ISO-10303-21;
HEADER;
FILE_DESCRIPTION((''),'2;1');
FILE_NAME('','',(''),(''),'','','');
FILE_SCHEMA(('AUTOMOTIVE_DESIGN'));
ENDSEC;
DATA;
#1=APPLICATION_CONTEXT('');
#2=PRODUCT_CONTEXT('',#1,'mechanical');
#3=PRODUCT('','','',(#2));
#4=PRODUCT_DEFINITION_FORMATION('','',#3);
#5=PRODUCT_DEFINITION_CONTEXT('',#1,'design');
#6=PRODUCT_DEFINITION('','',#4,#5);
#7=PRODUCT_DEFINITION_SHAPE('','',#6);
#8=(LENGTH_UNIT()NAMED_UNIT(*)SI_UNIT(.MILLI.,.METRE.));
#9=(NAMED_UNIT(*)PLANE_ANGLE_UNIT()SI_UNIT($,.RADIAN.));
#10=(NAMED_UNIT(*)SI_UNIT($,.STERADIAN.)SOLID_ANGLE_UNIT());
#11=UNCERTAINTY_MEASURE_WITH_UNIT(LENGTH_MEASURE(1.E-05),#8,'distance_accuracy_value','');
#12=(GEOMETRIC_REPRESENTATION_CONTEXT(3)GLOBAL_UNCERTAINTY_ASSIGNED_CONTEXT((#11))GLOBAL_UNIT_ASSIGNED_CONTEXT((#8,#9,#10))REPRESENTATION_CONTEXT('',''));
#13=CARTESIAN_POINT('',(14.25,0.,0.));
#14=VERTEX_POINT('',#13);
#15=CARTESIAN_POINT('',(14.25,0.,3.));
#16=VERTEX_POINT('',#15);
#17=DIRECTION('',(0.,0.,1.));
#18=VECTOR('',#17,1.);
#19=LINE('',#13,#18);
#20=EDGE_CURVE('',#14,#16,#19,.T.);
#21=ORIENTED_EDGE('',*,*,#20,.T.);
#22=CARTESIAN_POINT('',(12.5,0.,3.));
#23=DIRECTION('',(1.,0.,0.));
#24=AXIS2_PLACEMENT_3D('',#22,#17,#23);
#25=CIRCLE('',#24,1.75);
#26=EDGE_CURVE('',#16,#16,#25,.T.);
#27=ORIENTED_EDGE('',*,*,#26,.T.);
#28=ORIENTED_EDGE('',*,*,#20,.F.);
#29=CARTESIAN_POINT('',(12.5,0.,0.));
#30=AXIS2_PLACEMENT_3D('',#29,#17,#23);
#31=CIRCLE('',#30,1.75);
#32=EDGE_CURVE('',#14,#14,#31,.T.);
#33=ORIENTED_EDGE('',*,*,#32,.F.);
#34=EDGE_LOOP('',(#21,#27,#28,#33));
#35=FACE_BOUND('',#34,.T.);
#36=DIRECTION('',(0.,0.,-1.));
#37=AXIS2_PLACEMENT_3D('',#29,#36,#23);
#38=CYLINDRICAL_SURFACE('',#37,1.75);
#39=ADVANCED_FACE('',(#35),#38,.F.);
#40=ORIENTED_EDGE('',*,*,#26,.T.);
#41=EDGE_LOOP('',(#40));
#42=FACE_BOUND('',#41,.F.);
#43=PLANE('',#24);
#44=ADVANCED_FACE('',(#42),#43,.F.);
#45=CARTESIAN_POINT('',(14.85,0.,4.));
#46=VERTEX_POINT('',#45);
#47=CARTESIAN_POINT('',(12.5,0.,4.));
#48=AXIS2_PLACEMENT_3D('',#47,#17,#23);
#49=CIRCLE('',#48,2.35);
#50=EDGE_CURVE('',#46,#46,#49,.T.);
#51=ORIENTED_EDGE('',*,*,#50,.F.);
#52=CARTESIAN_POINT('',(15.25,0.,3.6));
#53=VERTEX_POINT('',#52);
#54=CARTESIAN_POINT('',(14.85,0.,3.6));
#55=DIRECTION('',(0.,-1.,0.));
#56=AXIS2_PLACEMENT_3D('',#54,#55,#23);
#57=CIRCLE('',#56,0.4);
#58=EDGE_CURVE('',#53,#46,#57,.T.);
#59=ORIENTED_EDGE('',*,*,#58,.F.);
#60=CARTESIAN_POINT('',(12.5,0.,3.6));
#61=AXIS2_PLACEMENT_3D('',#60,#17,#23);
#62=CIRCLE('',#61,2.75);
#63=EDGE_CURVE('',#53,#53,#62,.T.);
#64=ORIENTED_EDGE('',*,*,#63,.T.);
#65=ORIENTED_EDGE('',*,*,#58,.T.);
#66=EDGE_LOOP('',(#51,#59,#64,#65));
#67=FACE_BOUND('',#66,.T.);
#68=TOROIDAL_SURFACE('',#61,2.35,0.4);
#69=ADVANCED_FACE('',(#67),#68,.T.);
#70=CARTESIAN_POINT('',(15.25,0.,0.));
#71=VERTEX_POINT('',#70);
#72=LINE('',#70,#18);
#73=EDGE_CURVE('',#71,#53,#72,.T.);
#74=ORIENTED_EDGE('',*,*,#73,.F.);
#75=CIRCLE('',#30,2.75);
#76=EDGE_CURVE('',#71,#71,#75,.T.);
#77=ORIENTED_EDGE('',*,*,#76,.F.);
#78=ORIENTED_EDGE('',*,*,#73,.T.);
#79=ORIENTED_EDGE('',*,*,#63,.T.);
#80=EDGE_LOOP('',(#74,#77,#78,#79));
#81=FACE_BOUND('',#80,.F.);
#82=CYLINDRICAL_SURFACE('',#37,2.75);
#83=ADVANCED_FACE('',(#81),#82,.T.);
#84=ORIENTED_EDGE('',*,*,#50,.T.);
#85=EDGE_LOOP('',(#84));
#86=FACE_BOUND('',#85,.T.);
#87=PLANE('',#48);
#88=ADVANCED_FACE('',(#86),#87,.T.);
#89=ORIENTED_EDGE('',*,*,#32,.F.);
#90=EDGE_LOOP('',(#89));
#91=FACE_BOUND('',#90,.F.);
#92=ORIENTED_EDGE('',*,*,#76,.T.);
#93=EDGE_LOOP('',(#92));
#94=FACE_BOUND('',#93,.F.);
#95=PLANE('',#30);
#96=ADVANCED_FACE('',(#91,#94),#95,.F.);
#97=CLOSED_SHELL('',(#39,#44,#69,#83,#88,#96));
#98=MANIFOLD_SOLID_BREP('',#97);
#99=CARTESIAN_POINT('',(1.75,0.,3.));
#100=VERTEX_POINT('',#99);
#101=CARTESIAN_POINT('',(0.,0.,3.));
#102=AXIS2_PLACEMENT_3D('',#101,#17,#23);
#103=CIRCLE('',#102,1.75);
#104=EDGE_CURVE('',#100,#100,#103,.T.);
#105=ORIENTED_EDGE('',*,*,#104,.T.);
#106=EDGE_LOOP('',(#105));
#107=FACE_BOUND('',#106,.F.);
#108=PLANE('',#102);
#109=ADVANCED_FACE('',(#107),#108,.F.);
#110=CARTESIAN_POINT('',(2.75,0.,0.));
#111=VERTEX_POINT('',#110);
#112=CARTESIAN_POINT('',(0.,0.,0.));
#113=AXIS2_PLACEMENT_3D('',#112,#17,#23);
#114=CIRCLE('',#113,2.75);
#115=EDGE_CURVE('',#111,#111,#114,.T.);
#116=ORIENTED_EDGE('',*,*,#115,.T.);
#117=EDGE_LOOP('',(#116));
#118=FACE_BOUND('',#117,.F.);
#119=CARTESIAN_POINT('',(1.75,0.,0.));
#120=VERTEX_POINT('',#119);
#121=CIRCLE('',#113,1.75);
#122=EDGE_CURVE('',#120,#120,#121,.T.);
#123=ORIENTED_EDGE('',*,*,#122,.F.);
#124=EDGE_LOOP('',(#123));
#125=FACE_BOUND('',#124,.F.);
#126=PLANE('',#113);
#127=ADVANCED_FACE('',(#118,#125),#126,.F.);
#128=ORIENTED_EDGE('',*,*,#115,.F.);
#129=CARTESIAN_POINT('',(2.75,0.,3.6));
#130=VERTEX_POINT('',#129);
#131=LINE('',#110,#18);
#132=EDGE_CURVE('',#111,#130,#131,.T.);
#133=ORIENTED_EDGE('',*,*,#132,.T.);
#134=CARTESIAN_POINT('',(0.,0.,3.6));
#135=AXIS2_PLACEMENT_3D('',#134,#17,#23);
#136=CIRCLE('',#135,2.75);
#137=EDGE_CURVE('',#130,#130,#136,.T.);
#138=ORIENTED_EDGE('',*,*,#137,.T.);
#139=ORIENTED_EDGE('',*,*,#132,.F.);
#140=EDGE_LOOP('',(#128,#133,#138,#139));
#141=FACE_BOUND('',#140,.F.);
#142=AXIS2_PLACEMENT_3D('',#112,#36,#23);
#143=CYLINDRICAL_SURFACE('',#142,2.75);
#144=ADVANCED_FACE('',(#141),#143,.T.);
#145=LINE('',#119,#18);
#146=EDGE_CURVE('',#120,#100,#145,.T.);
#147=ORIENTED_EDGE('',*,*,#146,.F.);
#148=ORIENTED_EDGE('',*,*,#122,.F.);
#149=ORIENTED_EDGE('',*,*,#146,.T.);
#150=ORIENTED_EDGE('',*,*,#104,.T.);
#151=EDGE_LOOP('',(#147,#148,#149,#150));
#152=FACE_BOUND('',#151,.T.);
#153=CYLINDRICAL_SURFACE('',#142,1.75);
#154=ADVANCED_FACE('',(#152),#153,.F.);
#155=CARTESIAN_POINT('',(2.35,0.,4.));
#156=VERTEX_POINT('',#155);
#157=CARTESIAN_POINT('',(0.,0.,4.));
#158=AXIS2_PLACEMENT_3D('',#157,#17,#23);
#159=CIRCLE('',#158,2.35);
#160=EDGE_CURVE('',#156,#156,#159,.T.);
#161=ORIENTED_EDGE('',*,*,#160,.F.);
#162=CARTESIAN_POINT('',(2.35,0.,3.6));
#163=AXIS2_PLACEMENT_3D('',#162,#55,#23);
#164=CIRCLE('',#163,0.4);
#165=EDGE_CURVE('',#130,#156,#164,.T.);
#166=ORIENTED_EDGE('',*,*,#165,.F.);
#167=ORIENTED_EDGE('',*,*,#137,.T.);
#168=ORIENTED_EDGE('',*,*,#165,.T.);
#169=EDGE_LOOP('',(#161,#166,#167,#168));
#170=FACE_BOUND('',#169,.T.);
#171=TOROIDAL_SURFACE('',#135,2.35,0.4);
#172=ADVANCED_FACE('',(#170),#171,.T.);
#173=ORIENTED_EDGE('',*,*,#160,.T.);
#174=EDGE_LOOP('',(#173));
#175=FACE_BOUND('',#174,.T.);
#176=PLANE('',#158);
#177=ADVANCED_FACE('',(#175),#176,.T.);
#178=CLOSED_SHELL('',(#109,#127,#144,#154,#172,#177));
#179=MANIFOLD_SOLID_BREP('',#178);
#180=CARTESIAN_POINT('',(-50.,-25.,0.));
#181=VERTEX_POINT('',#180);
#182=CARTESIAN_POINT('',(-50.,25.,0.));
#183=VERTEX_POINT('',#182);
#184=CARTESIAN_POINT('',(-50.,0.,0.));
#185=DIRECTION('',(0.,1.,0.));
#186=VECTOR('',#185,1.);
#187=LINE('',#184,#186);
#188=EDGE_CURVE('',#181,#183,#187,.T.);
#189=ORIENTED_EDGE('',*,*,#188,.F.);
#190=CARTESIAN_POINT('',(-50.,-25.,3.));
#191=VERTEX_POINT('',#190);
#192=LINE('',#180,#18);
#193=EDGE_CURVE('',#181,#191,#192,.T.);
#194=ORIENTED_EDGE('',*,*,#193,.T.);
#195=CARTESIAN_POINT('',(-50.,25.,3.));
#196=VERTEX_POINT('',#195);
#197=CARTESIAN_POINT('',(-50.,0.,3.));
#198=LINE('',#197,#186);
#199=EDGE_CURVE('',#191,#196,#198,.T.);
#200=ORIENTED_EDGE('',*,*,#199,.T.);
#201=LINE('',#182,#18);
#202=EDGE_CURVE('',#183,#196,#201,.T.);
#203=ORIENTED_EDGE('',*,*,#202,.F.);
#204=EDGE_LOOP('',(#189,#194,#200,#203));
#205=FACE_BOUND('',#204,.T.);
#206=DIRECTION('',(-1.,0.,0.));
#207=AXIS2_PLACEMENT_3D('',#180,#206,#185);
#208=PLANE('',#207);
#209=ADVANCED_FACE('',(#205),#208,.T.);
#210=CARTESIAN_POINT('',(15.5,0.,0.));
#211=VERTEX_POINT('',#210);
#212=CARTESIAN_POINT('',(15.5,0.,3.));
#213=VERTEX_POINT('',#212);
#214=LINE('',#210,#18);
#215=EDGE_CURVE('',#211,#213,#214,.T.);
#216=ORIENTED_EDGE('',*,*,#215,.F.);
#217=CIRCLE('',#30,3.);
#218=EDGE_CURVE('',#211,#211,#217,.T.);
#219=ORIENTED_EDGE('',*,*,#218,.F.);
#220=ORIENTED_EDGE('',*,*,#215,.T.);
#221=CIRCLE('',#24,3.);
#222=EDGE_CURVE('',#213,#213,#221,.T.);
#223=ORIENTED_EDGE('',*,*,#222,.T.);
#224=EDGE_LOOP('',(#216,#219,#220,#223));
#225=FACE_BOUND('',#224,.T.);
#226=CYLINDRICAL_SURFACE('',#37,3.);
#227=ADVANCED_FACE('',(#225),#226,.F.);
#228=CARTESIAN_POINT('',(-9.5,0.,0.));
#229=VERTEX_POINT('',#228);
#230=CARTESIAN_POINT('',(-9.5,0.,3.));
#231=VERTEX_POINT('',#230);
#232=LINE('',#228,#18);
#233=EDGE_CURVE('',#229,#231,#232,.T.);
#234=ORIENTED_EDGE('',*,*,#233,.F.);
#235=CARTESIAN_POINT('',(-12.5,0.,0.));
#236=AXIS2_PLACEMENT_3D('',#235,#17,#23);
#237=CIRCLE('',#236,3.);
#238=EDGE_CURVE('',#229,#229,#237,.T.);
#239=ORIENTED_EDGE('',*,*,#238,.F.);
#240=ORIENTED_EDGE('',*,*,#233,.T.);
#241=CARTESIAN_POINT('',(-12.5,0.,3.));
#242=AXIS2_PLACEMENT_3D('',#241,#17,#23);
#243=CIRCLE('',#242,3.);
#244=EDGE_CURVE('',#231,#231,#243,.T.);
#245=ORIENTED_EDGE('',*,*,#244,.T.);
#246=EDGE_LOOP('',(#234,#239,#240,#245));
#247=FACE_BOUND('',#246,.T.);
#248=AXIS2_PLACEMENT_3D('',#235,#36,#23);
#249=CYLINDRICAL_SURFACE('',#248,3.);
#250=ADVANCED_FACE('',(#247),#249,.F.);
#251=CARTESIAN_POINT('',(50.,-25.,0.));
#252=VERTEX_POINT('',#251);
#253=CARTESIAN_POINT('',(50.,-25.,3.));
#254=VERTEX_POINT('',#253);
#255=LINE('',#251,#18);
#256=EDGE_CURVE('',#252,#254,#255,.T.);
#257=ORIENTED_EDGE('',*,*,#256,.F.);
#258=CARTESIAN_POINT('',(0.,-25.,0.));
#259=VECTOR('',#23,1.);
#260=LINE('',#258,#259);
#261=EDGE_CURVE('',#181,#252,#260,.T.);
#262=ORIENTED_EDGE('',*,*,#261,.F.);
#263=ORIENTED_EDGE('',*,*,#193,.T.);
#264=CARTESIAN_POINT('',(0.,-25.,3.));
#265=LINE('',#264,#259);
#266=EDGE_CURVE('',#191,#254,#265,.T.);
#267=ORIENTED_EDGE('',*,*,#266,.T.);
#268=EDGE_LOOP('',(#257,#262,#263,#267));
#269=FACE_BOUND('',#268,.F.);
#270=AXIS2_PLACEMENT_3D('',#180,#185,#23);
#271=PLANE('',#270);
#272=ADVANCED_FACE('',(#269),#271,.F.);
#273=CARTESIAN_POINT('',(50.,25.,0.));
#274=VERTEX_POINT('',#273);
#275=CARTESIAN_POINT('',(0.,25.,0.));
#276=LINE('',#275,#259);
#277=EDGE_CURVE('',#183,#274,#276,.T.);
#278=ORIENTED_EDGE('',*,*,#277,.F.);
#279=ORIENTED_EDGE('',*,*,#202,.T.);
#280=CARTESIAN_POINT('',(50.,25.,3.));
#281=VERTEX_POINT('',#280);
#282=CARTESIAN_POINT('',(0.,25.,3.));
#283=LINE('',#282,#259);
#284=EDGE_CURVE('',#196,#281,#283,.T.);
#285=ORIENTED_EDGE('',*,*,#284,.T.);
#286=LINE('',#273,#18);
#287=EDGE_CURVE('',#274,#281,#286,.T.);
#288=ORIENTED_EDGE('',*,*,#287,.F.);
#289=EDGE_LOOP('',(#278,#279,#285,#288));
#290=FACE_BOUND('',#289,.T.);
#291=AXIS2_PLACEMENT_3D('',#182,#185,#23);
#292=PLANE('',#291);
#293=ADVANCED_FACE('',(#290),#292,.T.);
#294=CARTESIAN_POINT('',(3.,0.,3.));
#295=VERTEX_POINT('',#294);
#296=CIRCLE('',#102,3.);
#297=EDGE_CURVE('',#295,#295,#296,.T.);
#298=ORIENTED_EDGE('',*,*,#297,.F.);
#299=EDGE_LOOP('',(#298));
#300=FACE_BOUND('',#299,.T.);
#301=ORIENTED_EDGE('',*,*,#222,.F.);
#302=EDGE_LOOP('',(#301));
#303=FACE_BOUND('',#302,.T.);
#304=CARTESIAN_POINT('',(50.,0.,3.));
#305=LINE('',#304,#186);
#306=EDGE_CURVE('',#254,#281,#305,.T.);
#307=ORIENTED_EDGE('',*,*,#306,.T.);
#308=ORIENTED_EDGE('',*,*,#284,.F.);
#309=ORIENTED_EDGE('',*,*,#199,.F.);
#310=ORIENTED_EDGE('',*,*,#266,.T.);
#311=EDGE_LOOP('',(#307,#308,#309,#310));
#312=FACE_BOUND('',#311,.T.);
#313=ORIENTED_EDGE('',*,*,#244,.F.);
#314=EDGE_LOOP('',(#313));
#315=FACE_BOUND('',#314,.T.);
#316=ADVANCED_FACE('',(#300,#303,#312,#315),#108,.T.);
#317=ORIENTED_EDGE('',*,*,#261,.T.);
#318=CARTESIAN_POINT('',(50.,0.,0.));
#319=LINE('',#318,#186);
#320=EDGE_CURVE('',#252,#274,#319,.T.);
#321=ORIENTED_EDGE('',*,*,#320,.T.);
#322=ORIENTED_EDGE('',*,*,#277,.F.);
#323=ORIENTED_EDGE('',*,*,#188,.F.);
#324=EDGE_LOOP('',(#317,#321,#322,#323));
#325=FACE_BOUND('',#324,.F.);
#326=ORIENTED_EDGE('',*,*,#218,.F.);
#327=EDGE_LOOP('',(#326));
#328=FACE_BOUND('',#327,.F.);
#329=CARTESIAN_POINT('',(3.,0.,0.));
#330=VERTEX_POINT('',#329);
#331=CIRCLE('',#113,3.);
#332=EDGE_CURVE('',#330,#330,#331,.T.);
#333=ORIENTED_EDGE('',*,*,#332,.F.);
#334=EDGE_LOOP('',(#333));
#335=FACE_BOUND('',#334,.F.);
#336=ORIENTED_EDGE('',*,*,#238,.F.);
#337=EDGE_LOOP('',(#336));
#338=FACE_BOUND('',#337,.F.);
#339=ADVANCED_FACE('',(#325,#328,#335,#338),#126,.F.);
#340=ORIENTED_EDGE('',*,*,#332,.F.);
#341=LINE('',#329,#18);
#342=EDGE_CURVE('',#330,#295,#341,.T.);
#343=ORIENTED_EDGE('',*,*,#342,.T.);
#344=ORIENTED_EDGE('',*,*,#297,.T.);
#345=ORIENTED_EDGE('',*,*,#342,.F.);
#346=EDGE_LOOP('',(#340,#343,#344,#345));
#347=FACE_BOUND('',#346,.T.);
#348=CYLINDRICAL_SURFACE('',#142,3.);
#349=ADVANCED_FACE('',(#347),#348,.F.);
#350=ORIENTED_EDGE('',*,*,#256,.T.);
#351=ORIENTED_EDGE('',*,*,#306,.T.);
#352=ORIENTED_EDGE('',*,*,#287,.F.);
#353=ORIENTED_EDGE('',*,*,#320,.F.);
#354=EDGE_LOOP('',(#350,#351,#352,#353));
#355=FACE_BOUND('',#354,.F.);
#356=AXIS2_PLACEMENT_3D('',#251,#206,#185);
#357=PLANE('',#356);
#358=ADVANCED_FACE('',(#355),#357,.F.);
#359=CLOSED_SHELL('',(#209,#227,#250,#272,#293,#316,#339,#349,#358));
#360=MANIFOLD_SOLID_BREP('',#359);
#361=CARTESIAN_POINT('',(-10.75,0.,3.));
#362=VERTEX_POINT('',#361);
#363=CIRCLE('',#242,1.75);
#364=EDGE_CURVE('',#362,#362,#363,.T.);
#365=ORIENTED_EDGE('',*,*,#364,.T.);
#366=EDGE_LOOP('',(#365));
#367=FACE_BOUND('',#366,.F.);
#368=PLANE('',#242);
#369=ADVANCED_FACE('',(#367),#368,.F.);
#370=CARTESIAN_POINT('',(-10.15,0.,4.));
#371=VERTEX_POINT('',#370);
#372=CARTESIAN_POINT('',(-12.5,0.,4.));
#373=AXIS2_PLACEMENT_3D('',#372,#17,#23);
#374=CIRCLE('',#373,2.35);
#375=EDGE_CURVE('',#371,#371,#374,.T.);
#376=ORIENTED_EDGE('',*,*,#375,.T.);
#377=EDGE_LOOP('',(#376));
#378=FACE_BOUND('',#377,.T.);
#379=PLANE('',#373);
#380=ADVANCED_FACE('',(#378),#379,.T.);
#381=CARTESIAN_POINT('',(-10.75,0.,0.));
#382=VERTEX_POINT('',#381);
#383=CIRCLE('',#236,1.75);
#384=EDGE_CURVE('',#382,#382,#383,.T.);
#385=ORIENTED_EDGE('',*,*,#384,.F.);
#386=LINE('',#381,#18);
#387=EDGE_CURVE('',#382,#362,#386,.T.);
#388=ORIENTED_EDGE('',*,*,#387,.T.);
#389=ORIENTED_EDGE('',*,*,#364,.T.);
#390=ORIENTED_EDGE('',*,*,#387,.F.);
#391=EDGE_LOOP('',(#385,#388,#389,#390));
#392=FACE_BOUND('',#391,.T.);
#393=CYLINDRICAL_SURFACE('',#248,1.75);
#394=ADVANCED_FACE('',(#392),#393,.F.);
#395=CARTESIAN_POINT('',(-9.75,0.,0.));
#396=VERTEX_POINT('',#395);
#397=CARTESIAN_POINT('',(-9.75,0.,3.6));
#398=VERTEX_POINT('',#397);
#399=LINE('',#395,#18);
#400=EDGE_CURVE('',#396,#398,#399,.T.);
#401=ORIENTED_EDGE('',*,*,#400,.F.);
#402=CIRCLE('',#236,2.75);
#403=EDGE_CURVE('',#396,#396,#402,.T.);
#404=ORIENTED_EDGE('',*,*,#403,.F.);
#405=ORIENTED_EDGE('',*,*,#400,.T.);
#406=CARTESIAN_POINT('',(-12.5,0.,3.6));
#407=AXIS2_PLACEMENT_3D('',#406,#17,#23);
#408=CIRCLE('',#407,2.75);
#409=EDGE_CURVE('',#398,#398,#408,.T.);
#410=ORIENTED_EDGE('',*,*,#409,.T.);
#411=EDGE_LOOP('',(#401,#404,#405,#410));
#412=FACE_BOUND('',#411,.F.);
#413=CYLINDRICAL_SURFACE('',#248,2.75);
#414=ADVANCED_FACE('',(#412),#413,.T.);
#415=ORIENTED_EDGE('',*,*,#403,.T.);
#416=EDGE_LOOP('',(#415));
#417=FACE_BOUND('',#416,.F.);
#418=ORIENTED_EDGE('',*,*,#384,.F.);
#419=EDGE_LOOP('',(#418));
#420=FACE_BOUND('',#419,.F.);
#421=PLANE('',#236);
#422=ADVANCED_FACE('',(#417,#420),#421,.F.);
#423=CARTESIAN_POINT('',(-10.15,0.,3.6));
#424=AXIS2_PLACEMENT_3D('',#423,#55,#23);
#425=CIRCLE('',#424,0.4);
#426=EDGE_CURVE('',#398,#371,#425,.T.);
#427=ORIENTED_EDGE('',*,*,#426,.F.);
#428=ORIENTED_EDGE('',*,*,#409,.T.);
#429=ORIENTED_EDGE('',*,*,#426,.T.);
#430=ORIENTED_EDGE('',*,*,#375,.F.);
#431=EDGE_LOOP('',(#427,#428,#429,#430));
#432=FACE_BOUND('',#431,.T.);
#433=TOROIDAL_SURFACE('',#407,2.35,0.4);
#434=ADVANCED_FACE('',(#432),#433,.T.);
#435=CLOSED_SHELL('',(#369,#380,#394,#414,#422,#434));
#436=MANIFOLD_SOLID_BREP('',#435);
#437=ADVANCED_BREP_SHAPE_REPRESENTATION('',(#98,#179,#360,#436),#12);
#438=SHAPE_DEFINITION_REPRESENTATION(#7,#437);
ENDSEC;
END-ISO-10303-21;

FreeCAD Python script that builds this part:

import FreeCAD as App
import Part
import Sketcher
from FreeCAD import Vector
Q = App.Units.Quantity


def edges_at(feature, points):
    """Names of the edges that pass closest to the given points."""
    edges = feature.Shape.Edges
    near = lambda p: min(range(len(edges)), key=lambda i: edges[i].distToShape(Part.Vertex(*p))[0])
    return sorted({f"Edge{near(p) + 1}" for p in points})

doc = App.newDocument("Part")
body = doc.addObject("PartDesign::Body", "Body")

# Sketch on XY plane
sketch1 = body.newObject("Sketcher::SketchObject", "Sketch")
sketch1.AttachmentSupport = (doc.getObject("XY_Plane"), [""])
sketch1.MapMode = "FlatFace"
sketch1.addGeometry([
    Part.LineSegment(Vector(-50, 25, 0), Vector(-50, -25, 0)),  # 0
    Part.LineSegment(Vector(-50, -25, 0), Vector(50, -25, 0)),  # 1
    Part.LineSegment(Vector(50, -25, 0), Vector(50, 25, 0)),  # 2
    Part.LineSegment(Vector(50, 25, 0), Vector(-50, 25, 0)),  # 3
    Part.Circle(Vector(-12.5, 0, 0), Vector(0, 0, 1), 3),  # 4
    Part.Circle(Vector(0, 0, 0), Vector(0, 0, 1), 3),  # 5
    Part.Circle(Vector(12.5, 0, 0), Vector(0, 0, 1), 3),  # 6
], False)
sketch1.addConstraint([
    Sketcher.Constraint("Coincident", 0, 2, 1, 1),
    Sketcher.Constraint("Coincident", 1, 2, 2, 1),
    Sketcher.Constraint("Coincident", 2, 2, 3, 1),
    Sketcher.Constraint("Coincident", 3, 2, 0, 1),
    Sketcher.Constraint("Vertical", 0),
    Sketcher.Constraint("Horizontal", 1),
    Sketcher.Constraint("Vertical", 2),
    Sketcher.Constraint("Horizontal", 3),
    Sketcher.Constraint("Coincident", 5, 3, -1, 1),
    Sketcher.Constraint("Equal", 4, 5),
    Sketcher.Constraint("Equal", 5, 6),
    Sketcher.Constraint("Symmetric", 4, 3, 6, 3, -1, 1),
    Sketcher.Constraint("Symmetric", 0, 2, 2, 2, -1, 1),
    Sketcher.Constraint("PointOnObject", 4, 3, -1),
    Sketcher.Constraint("Diameter", 4, Q("6 mm")),
    Sketcher.Constraint("DistanceX", 1, 1, 1, 2, Q("100 mm")),
    Sketcher.Constraint("DistanceY", 0, 2, 0, 1, Q("50 mm")),
    Sketcher.Constraint("DistanceX", 4, 3, 6, 3, Q("25 mm")),
])
pad1 = body.newObject("PartDesign::Pad", "Pad")
pad1.Profile = sketch1
pad1.Length = 3
body2 = doc.addObject("PartDesign::Body", "Body001")

# Sketch on XY plane
sketch2 = body2.newObject("Sketcher::SketchObject", "Sketch001")
sketch2.AttachmentSupport = (doc.getObject("XY_Plane001"), [""])
sketch2.MapMode = "FlatFace"
sketch2.addGeometry(Part.Circle(Vector(-12.5, 0, 0), Vector(0, 0, 1), 2.8), False)
sketch2.addConstraint([
    Sketcher.Constraint("PointOnObject", 0, 3, -1),
    Sketcher.Constraint("Diameter", 0, Q("5.5 mm")),
    Sketcher.Constraint("DistanceX", 0, 3, -1, 1, Q("12.5 mm")),
])
pad2 = body2.newObject("PartDesign::Pad", "Pad001")
pad2.Profile = sketch2
pad2.Length = 4
body3 = doc.addObject("PartDesign::Body", "Body002")

# Sketch on XY plane
sketch3 = body3.newObject("Sketcher::SketchObject", "Sketch002")
sketch3.AttachmentSupport = (doc.getObject("XY_Plane002"), [""])
sketch3.MapMode = "FlatFace"
sketch3.addGeometry(Part.Circle(Vector(0, 0, 0), Vector(0, 0, 1), 2.8), False)
sketch3.addConstraint([
    Sketcher.Constraint("Coincident", 0, 3, -1, 1),
    Sketcher.Constraint("Diameter", 0, Q("5.5 mm")),
])
pad3 = body3.newObject("PartDesign::Pad", "Pad002")
pad3.Profile = sketch3
pad3.Length = 4
body4 = doc.addObject("PartDesign::Body", "Body003")

# Sketch on XY plane
sketch4 = body4.newObject("Sketcher::SketchObject", "Sketch003")
sketch4.AttachmentSupport = (doc.getObject("XY_Plane003"), [""])
sketch4.MapMode = "FlatFace"
sketch4.addGeometry(Part.Circle(Vector(12.5, 0, 0), Vector(0, 0, 1), 2.8), False)
sketch4.addConstraint([
    Sketcher.Constraint("PointOnObject", 0, 3, -1),
    Sketcher.Constraint("Diameter", 0, Q("5.5 mm")),
    Sketcher.Constraint("DistanceX", -1, 1, 0, 3, Q("12.5 mm")),
])
pad4 = body4.newObject("PartDesign::Pad", "Pad003")
pad4.Profile = sketch4
pad4.Length = 4
body5 = doc.addObject("PartDesign::Body", "Body004")
body5.AllowCompound = True

# Sketch on XY plane
sketch5 = body5.newObject("Sketcher::SketchObject", "Sketch004")
sketch5.AttachmentSupport = (doc.getObject("XY_Plane004"), [""])
sketch5.MapMode = "FlatFace"
sketch5.addGeometry([
    Part.Circle(Vector(-12.5, 0, 0), Vector(0, 0, 1), 1.8),
    Part.Circle(Vector(0, 0, 0), Vector(0, 0, 1), 1.8),
    Part.Circle(Vector(12.5, 0, 0), Vector(0, 0, 1), 1.8),
], False)
sketch5.addConstraint([
    Sketcher.Constraint("Coincident", 1, 3, -1, 1),
    Sketcher.Constraint("Equal", 0, 1),
    Sketcher.Constraint("Equal", 1, 2),
    Sketcher.Constraint("Symmetric", 0, 3, 2, 3, -1, 1),
    Sketcher.Constraint("PointOnObject", 0, 3, -1),
    Sketcher.Constraint("Diameter", 0, Q("3.5 mm")),
    Sketcher.Constraint("DistanceX", 0, 3, 2, 3, Q("25 mm")),
])
pad5 = body5.newObject("PartDesign::Pad", "Pad004")
pad5.Profile = sketch5
pad5.Length = 3
doc.recompute()

body6 = doc.addObject("PartDesign::Body", "Body005")
body6.BaseFeature = body5
boolean = body2.newObject("PartDesign::Boolean", "Boolean")
boolean.Type = "Cut"
boolean.addObjects([body6])
doc.recompute()

fillet = body2.newObject("PartDesign::Fillet", "Fillet")
fillet.Base = (boolean, edges_at(boolean, [(-15.25, 0, 4)]))
fillet.Radius = 0.4
doc.recompute()

body7 = doc.addObject("PartDesign::Body", "Body006")
body7.BaseFeature = body5
boolean2 = body3.newObject("PartDesign::Boolean", "Boolean001")
boolean2.Type = "Cut"
boolean2.addObjects([body7])
doc.recompute()

fillet2 = body3.newObject("PartDesign::Fillet", "Fillet001")
fillet2.Base = (boolean2, edges_at(boolean2, [(-2.75, 0, 4)]))
fillet2.Radius = 0.4
doc.recompute()

boolean3 = body4.newObject("PartDesign::Boolean", "Boolean002")
boolean3.Type = "Cut"
boolean3.addObjects([body5])
doc.recompute()

fillet3 = body4.newObject("PartDesign::Fillet", "Fillet002")
fillet3.Base = (boolean3, edges_at(boolean3, [(9.75, 0, 4)]))
fillet3.Radius = 0.4

doc.recompute()
